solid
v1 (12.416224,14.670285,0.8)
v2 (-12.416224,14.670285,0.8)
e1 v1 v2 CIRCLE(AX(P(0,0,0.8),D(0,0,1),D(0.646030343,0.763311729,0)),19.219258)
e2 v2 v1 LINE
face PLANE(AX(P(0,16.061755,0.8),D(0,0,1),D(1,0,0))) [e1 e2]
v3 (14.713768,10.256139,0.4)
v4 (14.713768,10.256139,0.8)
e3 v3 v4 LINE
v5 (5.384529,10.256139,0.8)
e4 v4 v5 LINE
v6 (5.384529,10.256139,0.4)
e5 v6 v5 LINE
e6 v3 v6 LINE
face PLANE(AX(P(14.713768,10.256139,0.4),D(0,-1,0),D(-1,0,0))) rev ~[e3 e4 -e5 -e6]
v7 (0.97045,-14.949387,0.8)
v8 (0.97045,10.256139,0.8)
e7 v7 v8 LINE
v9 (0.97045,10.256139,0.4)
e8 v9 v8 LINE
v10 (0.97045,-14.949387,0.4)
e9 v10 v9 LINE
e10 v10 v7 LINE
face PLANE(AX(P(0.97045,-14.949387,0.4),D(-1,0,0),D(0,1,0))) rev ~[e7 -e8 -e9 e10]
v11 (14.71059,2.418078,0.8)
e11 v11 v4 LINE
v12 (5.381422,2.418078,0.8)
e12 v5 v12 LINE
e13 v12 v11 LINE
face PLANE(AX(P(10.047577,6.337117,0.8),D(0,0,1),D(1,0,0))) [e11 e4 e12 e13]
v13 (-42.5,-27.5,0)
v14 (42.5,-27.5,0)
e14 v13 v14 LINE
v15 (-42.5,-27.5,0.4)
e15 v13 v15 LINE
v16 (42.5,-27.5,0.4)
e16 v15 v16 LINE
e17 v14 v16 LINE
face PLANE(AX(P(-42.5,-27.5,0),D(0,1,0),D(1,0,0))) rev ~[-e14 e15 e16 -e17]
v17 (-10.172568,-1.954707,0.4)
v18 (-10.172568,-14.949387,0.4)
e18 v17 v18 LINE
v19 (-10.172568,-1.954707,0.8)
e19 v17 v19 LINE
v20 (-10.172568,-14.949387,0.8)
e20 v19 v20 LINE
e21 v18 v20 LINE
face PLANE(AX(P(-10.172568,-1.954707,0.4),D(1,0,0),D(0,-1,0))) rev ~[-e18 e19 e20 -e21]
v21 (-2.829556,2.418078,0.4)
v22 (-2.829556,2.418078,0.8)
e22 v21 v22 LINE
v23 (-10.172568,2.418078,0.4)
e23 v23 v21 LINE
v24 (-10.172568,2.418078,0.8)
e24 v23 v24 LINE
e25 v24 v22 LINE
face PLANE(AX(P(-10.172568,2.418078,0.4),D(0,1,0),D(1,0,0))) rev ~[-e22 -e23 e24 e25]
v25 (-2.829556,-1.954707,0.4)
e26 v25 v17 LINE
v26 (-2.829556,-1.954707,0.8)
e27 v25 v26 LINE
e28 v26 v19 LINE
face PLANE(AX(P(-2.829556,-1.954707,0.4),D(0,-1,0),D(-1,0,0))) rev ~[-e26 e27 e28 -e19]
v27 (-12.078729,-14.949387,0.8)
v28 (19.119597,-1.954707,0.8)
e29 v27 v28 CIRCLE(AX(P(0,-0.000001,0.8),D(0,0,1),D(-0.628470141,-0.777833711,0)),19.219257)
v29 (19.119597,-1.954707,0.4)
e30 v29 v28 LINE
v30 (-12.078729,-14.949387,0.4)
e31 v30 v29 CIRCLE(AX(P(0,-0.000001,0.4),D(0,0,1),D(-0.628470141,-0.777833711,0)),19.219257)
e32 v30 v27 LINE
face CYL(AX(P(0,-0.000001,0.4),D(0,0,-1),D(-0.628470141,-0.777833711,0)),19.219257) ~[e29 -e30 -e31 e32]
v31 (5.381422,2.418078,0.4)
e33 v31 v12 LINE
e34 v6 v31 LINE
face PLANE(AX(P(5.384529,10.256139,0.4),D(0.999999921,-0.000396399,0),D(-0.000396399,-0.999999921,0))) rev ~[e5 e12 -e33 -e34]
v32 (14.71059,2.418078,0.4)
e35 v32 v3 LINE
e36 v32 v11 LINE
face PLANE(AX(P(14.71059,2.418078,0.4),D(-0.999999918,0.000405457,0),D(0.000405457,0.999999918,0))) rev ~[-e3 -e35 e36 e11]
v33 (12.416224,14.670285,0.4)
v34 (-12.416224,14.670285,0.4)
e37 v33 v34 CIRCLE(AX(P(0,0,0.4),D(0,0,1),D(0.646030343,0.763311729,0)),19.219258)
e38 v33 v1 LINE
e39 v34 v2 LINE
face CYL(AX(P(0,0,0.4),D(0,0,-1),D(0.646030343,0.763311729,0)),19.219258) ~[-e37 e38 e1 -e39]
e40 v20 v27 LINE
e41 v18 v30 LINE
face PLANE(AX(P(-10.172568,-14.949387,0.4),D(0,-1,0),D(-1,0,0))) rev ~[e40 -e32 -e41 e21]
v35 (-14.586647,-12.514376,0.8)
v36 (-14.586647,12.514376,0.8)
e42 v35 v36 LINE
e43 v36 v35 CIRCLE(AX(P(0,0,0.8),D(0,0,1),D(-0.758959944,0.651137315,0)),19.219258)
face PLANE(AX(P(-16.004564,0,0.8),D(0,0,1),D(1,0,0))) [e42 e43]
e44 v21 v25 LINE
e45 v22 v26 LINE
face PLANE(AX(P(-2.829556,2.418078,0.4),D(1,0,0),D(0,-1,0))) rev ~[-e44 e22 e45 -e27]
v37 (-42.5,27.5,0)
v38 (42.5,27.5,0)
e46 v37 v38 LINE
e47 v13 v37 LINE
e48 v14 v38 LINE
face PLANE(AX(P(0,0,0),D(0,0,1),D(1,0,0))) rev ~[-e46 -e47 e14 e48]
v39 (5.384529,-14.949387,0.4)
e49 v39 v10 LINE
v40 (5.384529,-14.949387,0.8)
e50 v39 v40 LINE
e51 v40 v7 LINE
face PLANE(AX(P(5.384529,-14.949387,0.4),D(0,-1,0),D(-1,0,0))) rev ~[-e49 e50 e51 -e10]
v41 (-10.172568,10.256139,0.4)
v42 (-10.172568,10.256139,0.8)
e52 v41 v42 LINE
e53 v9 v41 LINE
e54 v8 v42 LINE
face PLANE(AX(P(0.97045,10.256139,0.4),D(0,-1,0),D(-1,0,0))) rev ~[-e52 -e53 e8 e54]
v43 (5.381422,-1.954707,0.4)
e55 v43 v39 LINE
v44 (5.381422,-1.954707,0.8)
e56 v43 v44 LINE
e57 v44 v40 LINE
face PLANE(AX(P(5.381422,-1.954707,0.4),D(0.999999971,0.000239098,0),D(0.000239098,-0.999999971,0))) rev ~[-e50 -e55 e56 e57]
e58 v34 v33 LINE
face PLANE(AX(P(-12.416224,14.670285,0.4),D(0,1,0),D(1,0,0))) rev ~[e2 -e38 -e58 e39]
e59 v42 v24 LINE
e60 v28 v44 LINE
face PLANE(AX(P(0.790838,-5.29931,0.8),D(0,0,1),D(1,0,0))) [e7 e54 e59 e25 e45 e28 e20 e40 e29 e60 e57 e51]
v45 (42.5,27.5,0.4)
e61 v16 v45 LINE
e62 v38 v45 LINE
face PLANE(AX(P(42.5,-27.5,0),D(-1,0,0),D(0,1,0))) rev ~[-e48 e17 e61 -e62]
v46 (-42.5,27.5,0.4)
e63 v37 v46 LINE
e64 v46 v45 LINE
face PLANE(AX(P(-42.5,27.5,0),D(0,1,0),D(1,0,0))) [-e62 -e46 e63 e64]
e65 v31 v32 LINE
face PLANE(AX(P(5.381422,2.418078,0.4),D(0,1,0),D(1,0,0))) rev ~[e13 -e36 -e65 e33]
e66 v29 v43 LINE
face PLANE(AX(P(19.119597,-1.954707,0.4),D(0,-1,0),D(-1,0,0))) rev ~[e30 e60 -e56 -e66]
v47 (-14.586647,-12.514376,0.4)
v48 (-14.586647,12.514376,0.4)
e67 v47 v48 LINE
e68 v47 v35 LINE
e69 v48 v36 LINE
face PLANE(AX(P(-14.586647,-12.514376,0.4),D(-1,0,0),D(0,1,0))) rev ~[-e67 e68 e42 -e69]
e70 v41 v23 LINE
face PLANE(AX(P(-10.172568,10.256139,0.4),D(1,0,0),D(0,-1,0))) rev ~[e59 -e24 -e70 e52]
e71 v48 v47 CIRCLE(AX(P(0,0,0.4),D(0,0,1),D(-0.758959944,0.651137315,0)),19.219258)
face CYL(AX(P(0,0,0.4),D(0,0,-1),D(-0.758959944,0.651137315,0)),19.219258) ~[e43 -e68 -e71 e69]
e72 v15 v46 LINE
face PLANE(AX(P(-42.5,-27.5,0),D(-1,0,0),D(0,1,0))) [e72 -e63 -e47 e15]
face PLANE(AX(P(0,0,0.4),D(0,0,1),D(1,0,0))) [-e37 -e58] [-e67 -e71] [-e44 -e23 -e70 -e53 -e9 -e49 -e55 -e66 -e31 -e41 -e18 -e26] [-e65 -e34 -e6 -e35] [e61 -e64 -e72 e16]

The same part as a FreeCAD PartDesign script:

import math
import FreeCAD as App
import Part
import Sketcher
from FreeCAD import Vector

doc = App.newDocument("Part")
params = doc.addObject("Spreadsheet::Sheet", "Params")
for row, (alias, value) in enumerate([
    ("sketch1_width", "85 mm"),
    ("sketch1_height", "55 mm"),
    ("pad1_length", "0.4 mm"),
    ("pad2_length", "0.4 mm"),
], start=1):
    params.set(f"A{row}", alias)
    params.set(f"B{row}", "=" + value)
    params.setAlias(f"B{row}", alias)

body = doc.addObject("PartDesign::Body", "Body")

sketch1 = doc.addObject("Sketcher::SketchObject", "Sketch")
body.addObject(sketch1)
sketch1.AttachmentSupport = (doc.XY_Plane, [""])
sketch1.MapMode = "FlatFace"
sketch1.addGeometry([
    Part.LineSegment(Vector(-42.5, 27.5, 0), Vector(-42.5, -27.5, 0)),
    Part.LineSegment(Vector(-42.5, -27.5, 0), Vector(42.5, -27.5, 0)),
    Part.LineSegment(Vector(42.5, -27.5, 0), Vector(42.5, 27.5, 0)),
    Part.LineSegment(Vector(42.5, 27.5, 0), Vector(-42.5, 27.5, 0)),
], False)
sketch1.addConstraint([
    Sketcher.Constraint("Coincident", 0, 2, 1, 1),
    Sketcher.Constraint("Coincident", 1, 2, 2, 1),
    Sketcher.Constraint("Coincident", 2, 2, 3, 1),
    Sketcher.Constraint("Coincident", 3, 2, 0, 1),
    Sketcher.Constraint("Vertical", 0),
    Sketcher.Constraint("Horizontal", 1),
    Sketcher.Constraint("Vertical", 2),
    Sketcher.Constraint("Horizontal", 3),
    Sketcher.Constraint("Symmetric", 0, 2, 2, 2, -1, 1),
    Sketcher.Constraint("DistanceX", 1, 1, 1, 2, 85.0),
    Sketcher.Constraint("DistanceY", 0, 2, 0, 1, 55.0),
])
sketch1.setExpression("Constraints[9]", "Params.sketch1_width")
sketch1.setExpression("Constraints[10]", "Params.sketch1_height")
pad1 = doc.addObject("PartDesign::Pad", "Pad")
body.addObject(pad1)
pad1.Profile = sketch1
pad1.setExpression("Length", "Params.pad1_length")

sketch2 = doc.addObject("Sketcher::SketchObject", "Sketch001")
body.addObject(sketch2)
sketch2.AttachmentSupport = (doc.XY_Plane, [""])
sketch2.MapMode = "FlatFace"
sketch2.AttachmentOffset = App.Placement(Vector(0, 0, 0.4), App.Rotation())
sketch2.addGeometry([
    Part.LineSegment(Vector(-10.172568, 10.256139, 0), Vector(-10.172568, 2.418078, 0)),
    Part.LineSegment(Vector(-10.172568, 2.418078, 0), Vector(-2.829556, 2.418078, 0)),
    Part.LineSegment(Vector(-2.829556, 2.418078, 0), Vector(-2.829556, -1.954707, 0)),
    Part.LineSegment(Vector(-2.829556, -1.954707, 0), Vector(-10.172568, -1.954707, 0)),
    Part.LineSegment(Vector(-10.172568, -1.954707, 0), Vector(-10.172568, -14.949387, 0)),
    Part.LineSegment(Vector(-10.172568, -14.949387, 0), Vector(-12.078729, -14.949387, 0)),
    Part.ArcOfCircle(Part.Circle(Vector(0, -0.000001, 0), Vector(0, 0, 1), 19.219257), math.radians(-128.937342), math.radians(-5.837395)),
    Part.LineSegment(Vector(19.119597, -1.954707, 0), Vector(5.381422, -1.954707, 0)),
    Part.LineSegment(Vector(5.381422, -1.954707, 0), Vector(5.384529, -14.949387, 0)),
    Part.LineSegment(Vector(5.384529, -14.949387, 0), Vector(0.97045, -14.949387, 0)),
    Part.LineSegment(Vector(0.97045, -14.949387, 0), Vector(0.97045, 10.256139, 0)),
    Part.LineSegment(Vector(0.97045, 10.256139, 0), Vector(-10.172568, 10.256139, 0)),
    Part.ArcOfCircle(Part.Circle(Vector(0, 0, 0), Vector(0, 0, 1), 19.219258), math.radians(139.372594), math.radians(220.627406)),
    Part.LineSegment(Vector(-14.586647, -12.514376, 0), Vector(-14.586647, 12.514376, 0)),
    Part.LineSegment(Vector(14.71059, 2.418078, 0), Vector(14.713768, 10.256139, 0)),
    Part.LineSegment(Vector(14.713768, 10.256139, 0), Vector(5.384529, 10.256139, 0)),
    Part.LineSegment(Vector(5.384529, 10.256139, 0), Vector(5.381422, 2.418078, 0)),
    Part.LineSegment(Vector(5.381422, 2.418078, 0), Vector(14.71059, 2.418078, 0)),
    Part.ArcOfCircle(Part.Circle(Vector(0, 0, 0), Vector(0, 0, 1), 19.219258), math.radians(49.757029), math.radians(130.242971)),
    Part.LineSegment(Vector(-12.416224, 14.670285, 0), Vector(12.416224, 14.670285, 0)),
], False)
sketch2.addConstraint([
    Sketcher.Constraint("Coincident", 0, 2, 1, 1),
    Sketcher.Constraint("Coincident", 1, 2, 2, 1),
    Sketcher.Constraint("Coincident", 2, 2, 3, 1),
    Sketcher.Constraint("Coincident", 3, 2, 4, 1),
    Sketcher.Constraint("Coincident", 4, 2, 5, 1),
    Sketcher.Constraint("Coincident", 5, 2, 6, 1),
    Sketcher.Constraint("Coincident", 6, 2, 7, 1),
    Sketcher.Constraint("Coincident", 7, 2, 8, 1),
    Sketcher.Constraint("Coincident", 8, 2, 9, 1),
    Sketcher.Constraint("Coincident", 9, 2, 10, 1),
    Sketcher.Constraint("Coincident", 10, 2, 11, 1),
    Sketcher.Constraint("Coincident", 11, 2, 0, 1),
    Sketcher.Constraint("Coincident", 12, 1, 13, 2),
    Sketcher.Constraint("Coincident", 13, 1, 12, 2),
    Sketcher.Constraint("Coincident", 14, 2, 15, 1),
    Sketcher.Constraint("Coincident", 15, 2, 16, 1),
    Sketcher.Constraint("Coincident", 16, 2, 17, 1),
    Sketcher.Constraint("Coincident", 17, 2, 14, 1),
    Sketcher.Constraint("Coincident", 18, 1, 19, 2),
    Sketcher.Constraint("Coincident", 19, 1, 18, 2),
    Sketcher.Constraint("Vertical", 0),
    Sketcher.Constraint("Horizontal", 1),
    Sketcher.Constraint("Vertical", 2),
    Sketcher.Constraint("Horizontal", 3),
    Sketcher.Constraint("Vertical", 4),
    Sketcher.Constraint("Horizontal", 5),
    Sketcher.Constraint("Horizontal", 7),
    Sketcher.Constraint("Horizontal", 9),
    Sketcher.Constraint("Vertical", 10),
    Sketcher.Constraint("Horizontal", 11),
    Sketcher.Constraint("Vertical", 13),
    Sketcher.Constraint("Horizontal", 15),
    Sketcher.Constraint("Horizontal", 17),
    Sketcher.Constraint("Horizontal", 19),
    Sketcher.Constraint("Coincident", 6, 3, -1, 1),
    Sketcher.Constraint("Coincident", 12, 3, -1, 1),
    Sketcher.Constraint("Coincident", 18, 3, -1, 1),
    Sketcher.Constraint("Equal", 6, 12),
    Sketcher.Constraint("Equal", 12, 18),
    Sketcher.Constraint("Horizontal", 3, 2, 6, 2),
    Sketcher.Constraint("Horizontal", 5, 2, 8, 2),
    Sketcher.Constraint("Horizontal", 11, 2, 14, 2),
    Sketcher.Constraint("Horizontal", 1, 2, 16, 2),
    Sketcher.Constraint("Vertical", 0, 2, 3, 2),
    Sketcher.Constraint("Vertical", 8, 2, 15, 2),
    Sketcher.Constraint("Vertical", 7, 2, 16, 2),
    Sketcher.Constraint("Radius", 18, 19.219258),
    Sketcher.Constraint("DistanceX", 5, 2, 5, 1, 1.906161),
    Sketcher.Constraint("DistanceX", 9, 2, 9, 1, 4.414079),
    Sketcher.Constraint("DistanceX", 15, 2, 15, 1, 9.329239),
    Sketcher.Constraint("DistanceY", 0, 2, 0, 1, 7.838061),
    Sketcher.Constraint("DistanceY", 4, 2, 4, 1, 12.99468),
    Sketcher.Constraint("DistanceY", 0, 2, 12, 1, 10.096298),
    Sketcher.Constraint("DistanceX", 1, 1, 1, 2, 7.343012),
    Sketcher.Constraint("DistanceX", 7, 2, 7, 1, 13.738175),
    Sketcher.Constraint("DistanceX", 11, 2, 11, 1, 11.143018),
    Sketcher.Constraint("DistanceX", 17, 1, 17, 2, 9.329168),
    Sketcher.Constraint("DistanceX", 19, 1, 19, 2, 24.832448),
    Sketcher.Constraint("DistanceY", 2, 2, 2, 1, 4.372785),
    Sketcher.Constraint("DistanceY", 13, 1, 13, 2, 25.028752),
])
pad2 = doc.addObject("PartDesign::Pad", "Pad001")
body.addObject(pad2)
pad2.Profile = sketch2
pad2.setExpression("Length", "Params.pad2_length")

doc.recompute()
